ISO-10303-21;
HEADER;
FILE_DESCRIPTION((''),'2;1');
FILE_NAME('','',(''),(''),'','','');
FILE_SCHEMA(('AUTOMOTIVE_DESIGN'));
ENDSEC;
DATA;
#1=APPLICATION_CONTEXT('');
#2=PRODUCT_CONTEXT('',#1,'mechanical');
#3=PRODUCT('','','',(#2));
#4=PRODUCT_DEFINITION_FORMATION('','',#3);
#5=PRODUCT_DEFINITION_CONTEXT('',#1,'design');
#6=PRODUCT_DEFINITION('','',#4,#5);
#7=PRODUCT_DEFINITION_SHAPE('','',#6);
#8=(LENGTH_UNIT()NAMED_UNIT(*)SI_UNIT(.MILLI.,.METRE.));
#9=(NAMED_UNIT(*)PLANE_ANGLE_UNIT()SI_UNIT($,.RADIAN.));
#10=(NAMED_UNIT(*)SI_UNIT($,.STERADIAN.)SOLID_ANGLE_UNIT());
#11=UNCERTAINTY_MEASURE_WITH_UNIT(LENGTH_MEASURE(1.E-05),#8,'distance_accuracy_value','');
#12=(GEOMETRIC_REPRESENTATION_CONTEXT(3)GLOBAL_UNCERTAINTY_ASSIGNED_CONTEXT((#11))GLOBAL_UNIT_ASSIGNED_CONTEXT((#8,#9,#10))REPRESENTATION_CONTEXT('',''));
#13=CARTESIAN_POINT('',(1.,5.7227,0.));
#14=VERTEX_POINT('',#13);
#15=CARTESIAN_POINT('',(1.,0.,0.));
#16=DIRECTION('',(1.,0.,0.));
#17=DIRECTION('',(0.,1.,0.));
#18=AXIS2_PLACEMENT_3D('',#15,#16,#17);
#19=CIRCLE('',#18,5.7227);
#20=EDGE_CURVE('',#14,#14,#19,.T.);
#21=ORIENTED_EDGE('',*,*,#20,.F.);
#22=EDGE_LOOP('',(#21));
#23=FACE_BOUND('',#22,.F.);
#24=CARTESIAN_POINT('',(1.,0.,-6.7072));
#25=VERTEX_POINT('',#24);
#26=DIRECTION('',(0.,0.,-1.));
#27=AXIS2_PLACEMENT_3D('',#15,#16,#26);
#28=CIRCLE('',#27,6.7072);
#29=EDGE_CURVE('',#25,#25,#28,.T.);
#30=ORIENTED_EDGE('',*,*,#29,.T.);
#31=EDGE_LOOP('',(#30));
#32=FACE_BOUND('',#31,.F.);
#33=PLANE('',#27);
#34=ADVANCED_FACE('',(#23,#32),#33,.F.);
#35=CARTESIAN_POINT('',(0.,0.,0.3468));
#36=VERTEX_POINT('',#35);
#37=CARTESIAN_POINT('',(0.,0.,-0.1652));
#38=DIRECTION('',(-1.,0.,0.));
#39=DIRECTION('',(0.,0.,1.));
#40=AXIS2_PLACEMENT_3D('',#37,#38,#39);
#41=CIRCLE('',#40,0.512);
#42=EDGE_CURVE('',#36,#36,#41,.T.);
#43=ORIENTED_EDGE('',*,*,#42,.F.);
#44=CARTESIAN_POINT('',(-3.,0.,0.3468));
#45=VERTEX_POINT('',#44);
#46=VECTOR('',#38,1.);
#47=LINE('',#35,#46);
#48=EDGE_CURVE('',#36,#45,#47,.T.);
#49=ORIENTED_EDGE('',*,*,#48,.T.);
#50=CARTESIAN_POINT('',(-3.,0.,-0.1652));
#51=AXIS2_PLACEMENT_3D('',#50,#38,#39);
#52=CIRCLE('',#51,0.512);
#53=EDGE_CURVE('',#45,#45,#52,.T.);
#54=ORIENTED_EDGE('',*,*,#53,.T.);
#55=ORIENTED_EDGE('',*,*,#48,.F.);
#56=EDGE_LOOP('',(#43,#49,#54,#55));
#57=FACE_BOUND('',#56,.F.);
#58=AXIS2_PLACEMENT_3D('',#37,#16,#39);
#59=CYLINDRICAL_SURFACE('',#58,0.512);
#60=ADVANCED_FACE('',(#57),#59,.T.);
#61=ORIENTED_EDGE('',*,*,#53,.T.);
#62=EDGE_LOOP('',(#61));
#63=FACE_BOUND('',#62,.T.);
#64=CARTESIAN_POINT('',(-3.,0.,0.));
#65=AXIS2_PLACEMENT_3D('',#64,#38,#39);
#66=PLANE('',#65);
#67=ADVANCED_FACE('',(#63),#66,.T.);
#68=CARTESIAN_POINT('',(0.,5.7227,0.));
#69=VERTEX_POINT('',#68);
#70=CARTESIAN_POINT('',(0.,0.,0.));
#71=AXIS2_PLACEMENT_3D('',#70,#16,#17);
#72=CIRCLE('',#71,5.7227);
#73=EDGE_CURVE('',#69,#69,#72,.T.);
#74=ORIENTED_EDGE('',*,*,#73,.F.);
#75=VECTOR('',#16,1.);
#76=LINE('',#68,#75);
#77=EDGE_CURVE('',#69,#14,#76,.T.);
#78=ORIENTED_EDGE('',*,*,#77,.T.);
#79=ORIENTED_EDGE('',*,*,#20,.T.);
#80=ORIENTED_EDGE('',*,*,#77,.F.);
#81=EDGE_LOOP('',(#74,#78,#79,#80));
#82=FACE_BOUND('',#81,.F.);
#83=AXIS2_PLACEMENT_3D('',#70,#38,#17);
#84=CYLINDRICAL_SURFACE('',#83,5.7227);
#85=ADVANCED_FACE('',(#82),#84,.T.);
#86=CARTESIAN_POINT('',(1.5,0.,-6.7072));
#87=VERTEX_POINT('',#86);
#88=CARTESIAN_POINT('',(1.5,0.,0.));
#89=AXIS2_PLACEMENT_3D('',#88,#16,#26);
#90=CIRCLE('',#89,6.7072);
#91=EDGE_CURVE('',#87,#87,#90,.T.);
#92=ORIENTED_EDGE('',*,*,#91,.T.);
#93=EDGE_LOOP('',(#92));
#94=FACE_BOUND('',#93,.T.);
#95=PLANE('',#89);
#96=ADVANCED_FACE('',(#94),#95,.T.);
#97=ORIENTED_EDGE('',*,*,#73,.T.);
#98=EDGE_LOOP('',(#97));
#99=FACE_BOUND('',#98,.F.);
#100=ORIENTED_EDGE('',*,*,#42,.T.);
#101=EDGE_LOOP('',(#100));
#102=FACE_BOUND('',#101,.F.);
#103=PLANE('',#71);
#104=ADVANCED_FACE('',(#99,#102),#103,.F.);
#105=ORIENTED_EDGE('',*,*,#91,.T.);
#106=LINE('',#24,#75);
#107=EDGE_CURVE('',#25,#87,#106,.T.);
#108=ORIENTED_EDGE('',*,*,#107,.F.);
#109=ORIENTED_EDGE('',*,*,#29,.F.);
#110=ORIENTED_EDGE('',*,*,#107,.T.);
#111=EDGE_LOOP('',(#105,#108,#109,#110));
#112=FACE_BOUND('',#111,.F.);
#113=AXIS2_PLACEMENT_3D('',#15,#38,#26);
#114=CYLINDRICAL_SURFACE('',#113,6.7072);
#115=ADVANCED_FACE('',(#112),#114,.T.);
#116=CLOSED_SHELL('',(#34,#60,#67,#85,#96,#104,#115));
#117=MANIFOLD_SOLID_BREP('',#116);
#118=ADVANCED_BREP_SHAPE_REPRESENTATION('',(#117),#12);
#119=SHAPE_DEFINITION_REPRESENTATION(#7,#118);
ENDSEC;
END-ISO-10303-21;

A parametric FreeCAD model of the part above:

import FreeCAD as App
import Part
import Sketcher
from FreeCAD import Vector
Q = App.Units.Quantity

doc = App.newDocument("Part")
body = doc.addObject("PartDesign::Body", "Body")

# Sketch on YZ plane
sketch1 = body.newObject("Sketcher::SketchObject", "Sketch")
sketch1.AttachmentSupport = (doc.getObject("YZ_Plane"), [""])
sketch1.MapMode = "FlatFace"
sketch1.addGeometry(Part.Circle(Vector(0, 0, 0), Vector(0, 0, 1), 6), False)
sketch1.addConstraint(Sketcher.Constraint("Coincident", 0, 3, -1, 1))
sketch1.addConstraint(Sketcher.Constraint("Diameter", 0, Q("11.4454 mm")))
pad1 = body.newObject("PartDesign::Pad", "Pad")
pad1.Profile = sketch1
pad1.Length = 1

# Sketch on YZ plane
sketch2 = body.newObject("Sketcher::SketchObject", "Sketch001")
sketch2.AttachmentSupport = (doc.getObject("YZ_Plane"), [""])
sketch2.MapMode = "FlatFace"
sketch2.AttachmentOffset = App.Placement(Vector(0, 0, 1), App.Rotation())
sketch2.addGeometry(Part.Circle(Vector(0, 0, 0), Vector(0, 0, 1), 7), False)
sketch2.addConstraint(Sketcher.Constraint("Coincident", 0, 3, -1, 1))
sketch2.addConstraint(Sketcher.Constraint("Diameter", 0, Q("13.4144 mm")))
pad2 = body.newObject("PartDesign::Pad", "Pad001")
pad2.Profile = sketch2
pad2.Length = 0.5

# Sketch on YZ plane
sketch3 = body.newObject("Sketcher::SketchObject", "Sketch002")
sketch3.AttachmentSupport = (doc.getObject("YZ_Plane"), [""])
sketch3.MapMode = "FlatFace"
sketch3.addGeometry(Part.Circle(Vector(0, -0.2, 0), Vector(0, 0, 1), 0.5), False)
sketch3.addConstraint(Sketcher.Constraint("PointOnObject", 0, 3, -2))
sketch3.addConstraint(Sketcher.Constraint("Diameter", 0, Q("1.024 mm")))
sketch3.addConstraint(Sketcher.Constraint("DistanceY", 0, 3, -1, 1, Q("0.1652 mm")))
pad3 = body.newObject("PartDesign::Pad", "Pad002")
pad3.Profile = sketch3
pad3.Length = 3
pad3.Reversed = True

doc.recompute()
